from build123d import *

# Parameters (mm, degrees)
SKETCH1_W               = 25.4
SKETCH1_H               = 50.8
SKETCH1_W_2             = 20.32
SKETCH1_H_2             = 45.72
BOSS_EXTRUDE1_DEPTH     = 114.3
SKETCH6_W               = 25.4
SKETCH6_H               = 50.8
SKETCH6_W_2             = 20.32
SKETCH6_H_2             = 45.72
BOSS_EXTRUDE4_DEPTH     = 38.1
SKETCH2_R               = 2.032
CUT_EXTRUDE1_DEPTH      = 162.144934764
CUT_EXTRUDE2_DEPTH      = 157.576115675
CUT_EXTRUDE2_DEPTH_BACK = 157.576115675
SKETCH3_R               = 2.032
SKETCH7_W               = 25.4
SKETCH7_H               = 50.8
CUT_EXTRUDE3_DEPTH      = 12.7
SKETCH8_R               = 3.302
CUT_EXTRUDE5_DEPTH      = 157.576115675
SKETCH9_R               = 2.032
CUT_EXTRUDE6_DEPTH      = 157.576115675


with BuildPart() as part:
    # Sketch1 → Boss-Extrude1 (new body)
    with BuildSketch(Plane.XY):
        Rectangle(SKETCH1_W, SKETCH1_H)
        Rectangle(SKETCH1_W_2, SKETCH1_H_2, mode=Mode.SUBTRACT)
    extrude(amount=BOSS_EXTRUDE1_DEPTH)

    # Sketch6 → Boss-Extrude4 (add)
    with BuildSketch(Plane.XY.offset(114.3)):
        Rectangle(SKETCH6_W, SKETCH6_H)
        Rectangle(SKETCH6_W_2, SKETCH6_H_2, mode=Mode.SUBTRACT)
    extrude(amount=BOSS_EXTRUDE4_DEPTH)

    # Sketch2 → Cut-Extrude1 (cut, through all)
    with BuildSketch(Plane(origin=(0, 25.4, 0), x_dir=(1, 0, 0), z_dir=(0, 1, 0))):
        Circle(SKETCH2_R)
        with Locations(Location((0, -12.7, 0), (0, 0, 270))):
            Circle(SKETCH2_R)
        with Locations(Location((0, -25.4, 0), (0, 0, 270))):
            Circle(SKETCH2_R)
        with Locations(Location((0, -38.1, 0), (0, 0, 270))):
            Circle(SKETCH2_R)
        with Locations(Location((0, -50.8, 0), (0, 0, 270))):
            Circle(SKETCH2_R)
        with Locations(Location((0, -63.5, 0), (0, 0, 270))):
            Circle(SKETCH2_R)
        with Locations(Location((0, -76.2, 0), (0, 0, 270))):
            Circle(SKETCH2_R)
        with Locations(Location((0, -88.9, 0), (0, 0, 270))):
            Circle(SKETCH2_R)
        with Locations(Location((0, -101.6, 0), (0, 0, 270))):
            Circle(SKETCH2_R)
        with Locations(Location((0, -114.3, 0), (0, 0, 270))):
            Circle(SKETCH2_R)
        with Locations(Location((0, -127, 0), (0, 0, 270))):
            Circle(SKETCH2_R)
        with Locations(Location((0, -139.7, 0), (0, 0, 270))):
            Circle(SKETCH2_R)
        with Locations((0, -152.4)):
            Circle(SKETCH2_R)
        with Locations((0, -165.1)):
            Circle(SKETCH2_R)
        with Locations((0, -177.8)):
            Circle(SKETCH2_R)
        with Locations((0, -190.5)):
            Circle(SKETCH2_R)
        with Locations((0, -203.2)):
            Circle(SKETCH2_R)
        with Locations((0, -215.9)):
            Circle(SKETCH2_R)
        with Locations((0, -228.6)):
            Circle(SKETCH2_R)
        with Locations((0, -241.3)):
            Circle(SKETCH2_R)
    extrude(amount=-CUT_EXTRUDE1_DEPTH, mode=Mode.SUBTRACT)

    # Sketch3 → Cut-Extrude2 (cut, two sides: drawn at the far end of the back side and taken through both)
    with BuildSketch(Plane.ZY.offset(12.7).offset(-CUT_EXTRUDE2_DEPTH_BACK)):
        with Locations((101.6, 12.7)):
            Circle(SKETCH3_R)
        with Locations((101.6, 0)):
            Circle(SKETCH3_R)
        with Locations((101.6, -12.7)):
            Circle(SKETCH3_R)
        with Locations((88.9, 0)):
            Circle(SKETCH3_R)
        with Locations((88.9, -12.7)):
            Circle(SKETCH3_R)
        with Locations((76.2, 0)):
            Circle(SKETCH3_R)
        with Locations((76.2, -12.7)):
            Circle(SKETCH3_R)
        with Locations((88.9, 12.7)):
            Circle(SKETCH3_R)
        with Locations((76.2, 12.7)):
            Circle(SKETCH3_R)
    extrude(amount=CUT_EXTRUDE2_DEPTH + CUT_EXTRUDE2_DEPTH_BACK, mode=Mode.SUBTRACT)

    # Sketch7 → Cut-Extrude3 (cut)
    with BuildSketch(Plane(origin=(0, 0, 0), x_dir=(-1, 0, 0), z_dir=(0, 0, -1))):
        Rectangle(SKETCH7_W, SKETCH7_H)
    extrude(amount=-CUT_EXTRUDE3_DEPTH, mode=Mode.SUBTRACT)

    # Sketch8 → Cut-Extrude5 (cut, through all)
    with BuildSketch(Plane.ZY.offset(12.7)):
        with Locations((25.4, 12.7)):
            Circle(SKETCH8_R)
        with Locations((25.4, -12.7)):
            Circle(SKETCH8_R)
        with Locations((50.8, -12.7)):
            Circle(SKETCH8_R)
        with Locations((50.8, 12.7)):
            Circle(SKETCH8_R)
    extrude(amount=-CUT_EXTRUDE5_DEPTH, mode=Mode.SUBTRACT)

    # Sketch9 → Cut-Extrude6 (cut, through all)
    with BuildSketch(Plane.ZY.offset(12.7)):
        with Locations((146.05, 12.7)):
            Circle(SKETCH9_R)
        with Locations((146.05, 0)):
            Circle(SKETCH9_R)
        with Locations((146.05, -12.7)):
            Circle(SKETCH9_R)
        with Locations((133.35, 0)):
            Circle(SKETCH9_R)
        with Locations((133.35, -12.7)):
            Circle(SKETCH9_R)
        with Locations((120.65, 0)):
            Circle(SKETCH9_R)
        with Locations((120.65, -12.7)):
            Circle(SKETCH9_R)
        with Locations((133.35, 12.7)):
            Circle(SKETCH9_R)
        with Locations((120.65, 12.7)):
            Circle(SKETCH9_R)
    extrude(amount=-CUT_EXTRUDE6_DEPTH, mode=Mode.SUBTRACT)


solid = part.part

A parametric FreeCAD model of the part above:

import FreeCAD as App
import Part
import Sketcher
from FreeCAD import Vector
Q = App.Units.Quantity


def add_polygon(sketch, points):
    """Adds a closed chain of lines whose ends are joined by coincident constraints."""
    first, n = sketch.GeometryCount, len(points)
    for a, b in zip(points, points[1:] + points[:1]):
        sketch.addGeometry(Part.LineSegment(App.Vector(*a, 0), App.Vector(*b, 0)), False)
    for i in range(n):
        sketch.addConstraint(Sketcher.Constraint("Coincident", first + i, 2, first + (i + 1) % n, 1))

doc = App.newDocument("Part")
params = doc.addObject("Spreadsheet::Sheet", "Params")
for row, (alias, value) in enumerate([
    ("sketch1_width", "1 in"),
    ("sketch1_height", "2 in"),
    ("sketch1_width2", "0.8 in"),
    ("sketch1_height2", "1.8 in"),
    ("pad1_length", "4.5 in"),
    ("sketch2_width", "1 in"),
    ("sketch2_height", "2 in"),
    ("sketch2_width2", "0.8 in"),
    ("sketch2_height2", "1.8 in"),
    ("pad2_length", "1.5 in"),
    ("sketch3_diameter", "0.16 in"),
    ("sketch4_diameter", "0.16 in"),
    ("sketch5_width", "1 in"),
    ("sketch5_height", "2 in"),
    ("pocket3_length", "0.5 in"),
    ("sketch6_diameter", "0.26 in"),
    ("sketch7_diameter", "0.16 in"),
], start=1):
    params.set(f"A{row}", alias)
    params.set(f"B{row}", "=" + value)
    params.setAlias(f"B{row}", alias)

body = doc.addObject("PartDesign::Body", "Body")

sketch1 = body.newObject("Sketcher::SketchObject", "Sketch")
sketch1.AttachmentSupport = (doc.getObject("XY_Plane"), [""])
sketch1.MapMode = "FlatFace"
add_polygon(sketch1, [(-13, 25), (-13, -25), (13, -25), (13, 25)])
add_polygon(sketch1, [(10, -23), (-10, -23), (-10, 23), (10, 23)])
sketch1.addConstraint([
    Sketcher.Constraint("Vertical", 0),
    Sketcher.Constraint("Horizontal", 1),
    Sketcher.Constraint("Vertical", 2),
    Sketcher.Constraint("Horizontal", 3),
    Sketcher.Constraint("Horizontal", 4),
    Sketcher.Constraint("Vertical", 5),
    Sketcher.Constraint("Horizontal", 6),
    Sketcher.Constraint("Vertical", 7),
    Sketcher.Constraint("Symmetric", 0, 2, 2, 2, -1, 1),
    Sketcher.Constraint("Symmetric", 4, 2, 6, 2, -1, 1),
    Sketcher.Constraint("DistanceX", 1, 1, 1, 2, Q("1 in")),
    Sketcher.Constraint("DistanceY", 0, 2, 0, 1, Q("2 in")),
    Sketcher.Constraint("DistanceX", 4, 2, 4, 1, Q("0.8 in")),
    Sketcher.Constraint("DistanceY", 5, 1, 5, 2, Q("1.8 in")),
])
sketch1.setExpression("Constraints[18]", "Params.sketch1_width")
sketch1.setExpression("Constraints[19]", "Params.sketch1_height")
sketch1.setExpression("Constraints[20]", "Params.sketch1_width2")
sketch1.setExpression("Constraints[21]", "Params.sketch1_height2")
pad1 = body.newObject("PartDesign::Pad", "Pad")
pad1.Profile = sketch1
pad1.setExpression("Length", "Params.pad1_length")

sketch2 = body.newObject("Sketcher::SketchObject", "Sketch001")
sketch2.AttachmentSupport = (doc.getObject("XY_Plane"), [""])
sketch2.MapMode = "FlatFace"
sketch2.AttachmentOffset = App.Placement(Vector(0, 0, 4.5 * 25.4), App.Rotation())
add_polygon(sketch2, [(-13, 25), (-13, -25), (13, -25), (13, 25)])
add_polygon(sketch2, [(10, -23), (-10, -23), (-10, 23), (10, 23)])
sketch2.addConstraint([
    Sketcher.Constraint("Vertical", 0),
    Sketcher.Constraint("Horizontal", 1),
    Sketcher.Constraint("Vertical", 2),
    Sketcher.Constraint("Horizontal", 3),
    Sketcher.Constraint("Horizontal", 4),
    Sketcher.Constraint("Vertical", 5),
    Sketcher.Constraint("Horizontal", 6),
    Sketcher.Constraint("Vertical", 7),
    Sketcher.Constraint("Symmetric", 0, 2, 2, 2, -1, 1),
    Sketcher.Constraint("Symmetric", 4, 2, 6, 2, -1, 1),
    Sketcher.Constraint("DistanceX", 1, 1, 1, 2, Q("1 in")),
    Sketcher.Constraint("DistanceY", 0, 2, 0, 1, Q("2 in")),
    Sketcher.Constraint("DistanceX", 4, 2, 4, 1, Q("0.8 in")),
    Sketcher.Constraint("DistanceY", 5, 1, 5, 2, Q("1.8 in")),
])
sketch2.setExpression("Constraints[18]", "Params.sketch2_width")
sketch2.setExpression("Constraints[19]", "Params.sketch2_height")
sketch2.setExpression("Constraints[20]", "Params.sketch2_width2")
sketch2.setExpression("Constraints[21]", "Params.sketch2_height2")
pad2 = body.newObject("PartDesign::Pad", "Pad001")
pad2.Profile = sketch2
pad2.setExpression("Length", "Params.pad2_length")

sketch3 = body.newObject("Sketcher::SketchObject", "Sketch002")
sketch3.AttachmentSupport = (doc.getObject("XZ_Plane"), [""])
sketch3.MapMode = "FlatFace"
sketch3.AttachmentOffset = App.Placement(Vector(0, 0, -1 * 25.4), App.Rotation())
sketch3.addGeometry([
    Part.Circle(Vector(0, 0, 0), Vector(0, 0, 1), 2),
    Part.Circle(Vector(0, 12.7, 0), Vector(0, 0, 1), 2),
    Part.Circle(Vector(0, 25.4, 0), Vector(0, 0, 1), 2),
    Part.Circle(Vector(0, 38.1, 0), Vector(0, 0, 1), 2),
    Part.Circle(Vector(0, 50.8, 0), Vector(0, 0, 1), 2),
    Part.Circle(Vector(0, 63.5, 0), Vector(0, 0, 1), 2),
    Part.Circle(Vector(0, 76.2, 0), Vector(0, 0, 1), 2),
    Part.Circle(Vector(0, 88.9, 0), Vector(0, 0, 1), 2),
    Part.Circle(Vector(0, 101.6, 0), Vector(0, 0, 1), 2),
    Part.Circle(Vector(0, 114.3, 0), Vector(0, 0, 1), 2),
    Part.Circle(Vector(0, 127, 0), Vector(0, 0, 1), 2),
    Part.Circle(Vector(0, 139.7, 0), Vector(0, 0, 1), 2),
    Part.Circle(Vector(0, 152.4, 0), Vector(0, 0, 1), 2),
    Part.Circle(Vector(0, 165.1, 0), Vector(0, 0, 1), 2),
    Part.Circle(Vector(0, 177.8, 0), Vector(0, 0, 1), 2),
    Part.Circle(Vector(0, 190.5, 0), Vector(0, 0, 1), 2),
    Part.Circle(Vector(0, 203.2, 0), Vector(0, 0, 1), 2),
    Part.Circle(Vector(0, 215.9, 0), Vector(0, 0, 1), 2),
    Part.Circle(Vector(0, 228.6, 0), Vector(0, 0, 1), 2),
    Part.Circle(Vector(0, 241.3, 0), Vector(0, 0, 1), 2),
], False)
sketch3.addConstraint([
    Sketcher.Constraint("Coincident", 0, 3, -1, 1),
    Sketcher.Constraint("Equal", 0, 1),
    Sketcher.Constraint("Equal", 1, 2),
    Sketcher.Constraint("Equal", 2, 3),
    Sketcher.Constraint("Equal", 3, 4),
    Sketcher.Constraint("Equal", 4, 5),
    Sketcher.Constraint("Equal", 5, 6),
    Sketcher.Constraint("Equal", 6, 7),
    Sketcher.Constraint("Equal", 7, 8),
    Sketcher.Constraint("Equal", 8, 9),
    Sketcher.Constraint("Equal", 9, 10),
    Sketcher.Constraint("Equal", 10, 11),
    Sketcher.Constraint("Equal", 11, 12),
    Sketcher.Constraint("Equal", 12, 13),
    Sketcher.Constraint("Equal", 13, 14),
    Sketcher.Constraint("Equal", 14, 15),
    Sketcher.Constraint("Equal", 15, 16),
    Sketcher.Constraint("Equal", 16, 17),
    Sketcher.Constraint("Equal", 17, 18),
    Sketcher.Constraint("Equal", 18, 19),
    Sketcher.Constraint("PointOnObject", 1, 3, -2),
    Sketcher.Constraint("PointOnObject", 2, 3, -2),
    Sketcher.Constraint("PointOnObject", 3, 3, -2),
    Sketcher.Constraint("PointOnObject", 4, 3, -2),
    Sketcher.Constraint("PointOnObject", 5, 3, -2),
    Sketcher.Constraint("PointOnObject", 6, 3, -2),
    Sketcher.Constraint("PointOnObject", 7, 3, -2),
    Sketcher.Constraint("PointOnObject", 8, 3, -2),
    Sketcher.Constraint("PointOnObject", 9, 3, -2),
    Sketcher.Constraint("PointOnObject", 10, 3, -2),
    Sketcher.Constraint("PointOnObject", 11, 3, -2),
    Sketcher.Constraint("PointOnObject", 12, 3, -2),
    Sketcher.Constraint("PointOnObject", 13, 3, -2),
    Sketcher.Constraint("PointOnObject", 14, 3, -2),
    Sketcher.Constraint("PointOnObject", 15, 3, -2),
    Sketcher.Constraint("PointOnObject", 16, 3, -2),
    Sketcher.Constraint("PointOnObject", 17, 3, -2),
    Sketcher.Constraint("PointOnObject", 18, 3, -2),
    Sketcher.Constraint("PointOnObject", 19, 3, -2),
    Sketcher.Constraint("Diameter", 0, Q("0.16 in")),
    Sketcher.Constraint("DistanceY", -1, 1, 2, 3, Q("1 in")),
    Sketcher.Constraint("DistanceY", -1, 1, 4, 3, Q("2 in")),
    Sketcher.Constraint("DistanceY", -1, 1, 6, 3, Q("3 in")),
    Sketcher.Constraint("DistanceY", -1, 1, 8, 3, Q("4 in")),
    Sketcher.Constraint("DistanceY", -1, 1, 10, 3, Q("5 in")),
    Sketcher.Constraint("DistanceY", -1, 1, 12, 3, Q("6 in")),
    Sketcher.Constraint("DistanceY", -1, 1, 14, 3, Q("7 in")),
    Sketcher.Constraint("DistanceY", -1, 1, 16, 3, Q("8 in")),
    Sketcher.Constraint("DistanceY", -1, 1, 18, 3, Q("9 in")),
    Sketcher.Constraint("DistanceY", 1, 3, 3, 3, Q("1 in")),
    Sketcher.Constraint("DistanceY", 3, 3, 5, 3, Q("1 in")),
    Sketcher.Constraint("DistanceY", 5, 3, 7, 3, Q("1 in")),
    Sketcher.Constraint("DistanceY", 7, 3, 9, 3, Q("1 in")),
    Sketcher.Constraint("DistanceY", 9, 3, 11, 3, Q("1 in")),
    Sketcher.Constraint("DistanceY", 11, 3, 13, 3, Q("1 in")),
    Sketcher.Constraint("DistanceY", 13, 3, 15, 3, Q("1 in")),
    Sketcher.Constraint("DistanceY", 15, 3, 17, 3, Q("1 in")),
    Sketcher.Constraint("DistanceY", 17, 3, 19, 3, Q("1 in")),
    Sketcher.Constraint("DistanceY", -1, 1, 1, 3, Q("0.5 in")),
])
sketch3.setExpression("Constraints[39]", "Params.sketch3_diameter")
pocket1 = body.newObject("PartDesign::Pocket", "Pocket")
pocket1.Profile = sketch3
pocket1.Type = "ThroughAll"
pocket1.Reversed = True

sketch4 = body.newObject("Sketcher::SketchObject", "Sketch003")
sketch4.AttachmentSupport = (doc.getObject("YZ_Plane"), [""])
sketch4.MapMode = "FlatFace"
sketch4.AttachmentOffset = App.Placement(Vector(0, 0, -0.5 * 25.4), App.Rotation())
sketch4.addGeometry([
    Part.Circle(Vector(12.7, 101.6, 0), Vector(0, 0, 1), 2),
    Part.Circle(Vector(0, 101.6, 0), Vector(0, 0, 1), 2),
    Part.Circle(Vector(-12.7, 101.6, 0), Vector(0, 0, 1), 2),
    Part.Circle(Vector(0, 88.9, 0), Vector(0, 0, 1), 2),
    Part.Circle(Vector(-12.7, 88.9, 0), Vector(0, 0, 1), 2),
    Part.Circle(Vector(0, 76.2, 0), Vector(0, 0, 1), 2),
    Part.Circle(Vector(-12.7, 76.2, 0), Vector(0, 0, 1), 2),
    Part.Circle(Vector(12.7, 88.9, 0), Vector(0, 0, 1), 2),
    Part.Circle(Vector(12.7, 76.2, 0), Vector(0, 0, 1), 2),
], False)
sketch4.addConstraint([
    Sketcher.Constraint("Equal", 0, 1),
    Sketcher.Constraint("Equal", 1, 2),
    Sketcher.Constraint("Equal", 2, 3),
    Sketcher.Constraint("Equal", 3, 4),
    Sketcher.Constraint("Equal", 4, 5),
    Sketcher.Constraint("Equal", 5, 6),
    Sketcher.Constraint("Equal", 6, 7),
    Sketcher.Constraint("Equal", 7, 8),
    Sketcher.Constraint("Symmetric", 0, 3, 2, 3, -2),
    Sketcher.Constraint("Symmetric", 4, 3, 7, 3, -2),
    Sketcher.Constraint("Symmetric", 6, 3, 8, 3, -2),
    Sketcher.Constraint("PointOnObject", 1, 3, -2),
    Sketcher.Constraint("PointOnObject", 3, 3, -2),
    Sketcher.Constraint("PointOnObject", 5, 3, -2),
    Sketcher.Constraint("Horizontal", 0, 3, 1, 3),
    Sketcher.Constraint("Horizontal", 3, 3, 4, 3),
    Sketcher.Constraint("Horizontal", 5, 3, 6, 3),
    Sketcher.Constraint("Vertical", 2, 3, 4, 3),
    Sketcher.Constraint("Vertical", 4, 3, 6, 3),
    Sketcher.Constraint("Diameter", 0, Q("0.16 in")),
    Sketcher.Constraint("DistanceY", -1, 1, 0, 3, Q("4 in")),
    Sketcher.Constraint("DistanceY", -1, 1, 5, 3, Q("3 in")),
    Sketcher.Constraint("DistanceX", 2, 3, 0, 3, Q("1 in")),
    Sketcher.Constraint("DistanceY", -1, 1, 3, 3, Q("3.5 in")),
])
sketch4.setExpression("Constraints[19]", "Params.sketch4_diameter")
pocket2 = body.newObject("PartDesign::Pocket", "Pocket001")
pocket2.Profile = sketch4
pocket2.Type = "ThroughAll"
pocket2.Midplane = True

sketch5 = body.newObject("Sketcher::SketchObject", "Sketch004")
sketch5.AttachmentSupport = (doc.getObject("XY_Plane"), [""])
sketch5.MapMode = "FlatFace"
add_polygon(sketch5, [(13, 25), (13, -25), (-13, -25), (-13, 25)])
sketch5.addConstraint([
    Sketcher.Constraint("Vertical", 0),
    Sketcher.Constraint("Horizontal", 1),
    Sketcher.Constraint("Vertical", 2),
    Sketcher.Constraint("Horizontal", 3),
    Sketcher.Constraint("Symmetric", 0, 2, 2, 2, -1, 1),
    Sketcher.Constraint("DistanceX", 1, 2, 1, 1, Q("1 in")),
    Sketcher.Constraint("DistanceY", 0, 2, 0, 1, Q("2 in")),
])
sketch5.setExpression("Constraints[9]", "Params.sketch5_width")
sketch5.setExpression("Constraints[10]", "Params.sketch5_height")
pocket3 = body.newObject("PartDesign::Pocket", "Pocket002")
pocket3.Profile = sketch5
pocket3.setExpression("Length", "Params.pocket3_length")
pocket3.Reversed = True

sketch6 = body.newObject("Sketcher::SketchObject", "Sketch005")
sketch6.AttachmentSupport = (doc.getObject("YZ_Plane"), [""])
sketch6.MapMode = "FlatFace"
sketch6.AttachmentOffset = App.Placement(Vector(0, 0, -0.5 * 25.4), App.Rotation())
sketch6.addGeometry([
    Part.Circle(Vector(12.7, 25.4, 0), Vector(0, 0, 1), 3.3),
    Part.Circle(Vector(-12.7, 25.4, 0), Vector(0, 0, 1), 3.3),
    Part.Circle(Vector(-12.7, 50.8, 0), Vector(0, 0, 1), 3.3),
    Part.Circle(Vector(12.7, 50.8, 0), Vector(0, 0, 1), 3.3),
], False)
sketch6.addConstraint([
    Sketcher.Constraint("Equal", 0, 1),
    Sketcher.Constraint("Equal", 1, 2),
    Sketcher.Constraint("Equal", 2, 3),
    Sketcher.Constraint("Symmetric", 0, 3, 1, 3, -2),
    Sketcher.Constraint("Symmetric", 2, 3, 3, 3, -2),
    Sketcher.Constraint("Vertical", 1, 3, 2, 3),
    Sketcher.Constraint("Diameter", 0, Q("0.26 in")),
    Sketcher.Constraint("DistanceY", -1, 1, 0, 3, Q("1 in")),
    Sketcher.Constraint("DistanceY", -1, 1, 2, 3, Q("2 in")),
    Sketcher.Constraint("DistanceX", 1, 3, 0, 3, Q("1 in")),
])
sketch6.setExpression("Constraints[6]", "Params.sketch6_diameter")
pocket4 = body.newObject("PartDesign::Pocket", "Pocket003")
pocket4.Profile = sketch6
pocket4.Type = "ThroughAll"
pocket4.Reversed = True

sketch7 = body.newObject("Sketcher::SketchObject", "Sketch006")
sketch7.AttachmentSupport = (doc.getObject("YZ_Plane"), [""])
sketch7.MapMode = "FlatFace"
sketch7.AttachmentOffset = App.Placement(Vector(0, 0, -0.5 * 25.4), App.Rotation())
sketch7.addGeometry([
    Part.Circle(Vector(12.7, 146.1, 0), Vector(0, 0, 1), 2),
    Part.Circle(Vector(0, 146.1, 0), Vector(0, 0, 1), 2),
    Part.Circle(Vector(-12.7, 146.1, 0), Vector(0, 0, 1), 2),
    Part.Circle(Vector(0, 133.3, 0), Vector(0, 0, 1), 2),
    Part.Circle(Vector(-12.7, 133.3, 0), Vector(0, 0, 1), 2),
    Part.Circle(Vector(0, 120.7, 0), Vector(0, 0, 1), 2),
    Part.Circle(Vector(-12.7, 120.7, 0), Vector(0, 0, 1), 2),
    Part.Circle(Vector(12.7, 133.3, 0), Vector(0, 0, 1), 2),
    Part.Circle(Vector(12.7, 120.7, 0), Vector(0, 0, 1), 2),
], False)
sketch7.addConstraint([
    Sketcher.Constraint("Equal", 0, 1),
    Sketcher.Constraint("Equal", 1, 2),
    Sketcher.Constraint("Equal", 2, 3),
    Sketcher.Constraint("Equal", 3, 4),
    Sketcher.Constraint("Equal", 4, 5),
    Sketcher.Constraint("Equal", 5, 6),
    Sketcher.Constraint("Equal", 6, 7),
    Sketcher.Constraint("Equal", 7, 8),
    Sketcher.Constraint("Symmetric", 0, 3, 2, 3, -2),
    Sketcher.Constraint("Symmetric", 4, 3, 7, 3, -2),
    Sketcher.Constraint("Symmetric", 6, 3, 8, 3, -2),
    Sketcher.Constraint("PointOnObject", 1, 3, -2),
    Sketcher.Constraint("PointOnObject", 3, 3, -2),
    Sketcher.Constraint("PointOnObject", 5, 3, -2),
    Sketcher.Constraint("Horizontal", 0, 3, 1, 3),
    Sketcher.Constraint("Horizontal", 3, 3, 4, 3),
    Sketcher.Constraint("Horizontal", 5, 3, 6, 3),
    Sketcher.Constraint("Vertical", 2, 3, 4, 3),
    Sketcher.Constraint("Vertical", 4, 3, 6, 3),
    Sketcher.Constraint("Diameter", 0, Q("0.16 in")),
    Sketcher.Constraint("DistanceX", 2, 3, 0, 3, Q("1 in")),
    Sketcher.Constraint("DistanceY", 5, 3, 1, 3, Q("1 in")),
    Sketcher.Constraint("DistanceY", 3, 3, 1, 3, Q("0.5 in")),
    Sketcher.Constraint("DistanceY", -1, 1, 0, 3, Q("5.75 in")),
])
sketch7.setExpression("Constraints[19]", "Params.sketch7_diameter")
pocket5 = body.newObject("PartDesign::Pocket", "Pocket004")
pocket5.Profile = sketch7
pocket5.Type = "ThroughAll"
pocket5.Reversed = True

doc.recompute()
